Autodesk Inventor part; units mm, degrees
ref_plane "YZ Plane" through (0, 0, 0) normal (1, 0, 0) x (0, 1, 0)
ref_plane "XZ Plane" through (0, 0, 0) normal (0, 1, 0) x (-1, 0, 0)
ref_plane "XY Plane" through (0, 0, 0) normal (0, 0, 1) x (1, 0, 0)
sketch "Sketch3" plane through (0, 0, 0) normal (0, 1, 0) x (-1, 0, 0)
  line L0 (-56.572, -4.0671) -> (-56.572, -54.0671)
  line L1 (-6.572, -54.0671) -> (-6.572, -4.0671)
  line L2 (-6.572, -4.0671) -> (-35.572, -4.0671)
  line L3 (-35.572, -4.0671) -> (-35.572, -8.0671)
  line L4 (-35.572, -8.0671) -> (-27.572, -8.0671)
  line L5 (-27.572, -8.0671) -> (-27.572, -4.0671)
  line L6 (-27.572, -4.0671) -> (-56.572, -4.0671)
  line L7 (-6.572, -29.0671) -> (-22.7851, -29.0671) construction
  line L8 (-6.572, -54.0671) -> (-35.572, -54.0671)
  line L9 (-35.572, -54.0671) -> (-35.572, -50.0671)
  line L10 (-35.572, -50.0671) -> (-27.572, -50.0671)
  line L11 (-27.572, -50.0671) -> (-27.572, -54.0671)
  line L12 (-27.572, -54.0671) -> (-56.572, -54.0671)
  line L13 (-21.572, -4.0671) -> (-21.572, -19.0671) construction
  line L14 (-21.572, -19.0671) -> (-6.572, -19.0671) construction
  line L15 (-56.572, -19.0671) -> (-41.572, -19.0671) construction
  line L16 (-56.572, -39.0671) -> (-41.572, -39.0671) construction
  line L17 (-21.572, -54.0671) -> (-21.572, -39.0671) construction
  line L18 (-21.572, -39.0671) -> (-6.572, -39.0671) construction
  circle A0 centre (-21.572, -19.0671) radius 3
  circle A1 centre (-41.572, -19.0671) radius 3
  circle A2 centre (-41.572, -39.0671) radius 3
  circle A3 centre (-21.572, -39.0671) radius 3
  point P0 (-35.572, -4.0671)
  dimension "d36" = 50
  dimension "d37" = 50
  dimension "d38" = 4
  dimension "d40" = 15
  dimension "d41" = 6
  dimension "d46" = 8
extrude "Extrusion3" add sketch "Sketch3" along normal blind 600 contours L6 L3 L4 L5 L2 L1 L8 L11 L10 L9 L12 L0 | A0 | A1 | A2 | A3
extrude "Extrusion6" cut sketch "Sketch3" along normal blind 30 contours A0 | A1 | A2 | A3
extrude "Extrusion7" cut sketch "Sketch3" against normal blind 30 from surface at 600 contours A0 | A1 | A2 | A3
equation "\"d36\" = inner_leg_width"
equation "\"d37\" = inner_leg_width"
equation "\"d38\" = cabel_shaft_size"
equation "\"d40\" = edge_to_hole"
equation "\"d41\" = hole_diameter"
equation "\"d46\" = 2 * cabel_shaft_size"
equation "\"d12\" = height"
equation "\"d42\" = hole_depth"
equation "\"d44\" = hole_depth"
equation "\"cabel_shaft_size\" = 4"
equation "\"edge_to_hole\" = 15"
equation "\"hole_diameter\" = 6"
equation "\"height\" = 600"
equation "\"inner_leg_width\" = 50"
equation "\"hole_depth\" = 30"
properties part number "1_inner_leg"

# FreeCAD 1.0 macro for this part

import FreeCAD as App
import Part
import Sketcher
Q = App.Units.Quantity


def add_polygon(sketch, points):
    """Adds a closed chain of lines whose ends are joined by coincident constraints."""
    first, n = sketch.GeometryCount, len(points)
    for a, b in zip(points, points[1:] + points[:1]):
        sketch.addGeometry(Part.LineSegment(App.Vector(*a, 0), App.Vector(*b, 0)), False)
    for i in range(n):
        sketch.addConstraint(Sketcher.Constraint("Coincident", first + i, 2, first + (i + 1) % n, 1))

doc = App.newDocument("Part")
params = doc.addObject("Spreadsheet::Sheet", "Params")
for row, (alias, value) in enumerate([
    ("sketch1_width", "8 mm"),
    ("sketch1_height", "50 mm"),
    ("sketch1_height2", "4 mm"),
    ("pad1_length", "600 mm"),
    ("sketch2_diameter", "6 mm"),
    ("pocket1_length", "30 mm"),
    ("sketch3_diameter", "6 mm"),
    ("pocket2_length", "30 mm"),
], start=1):
    params.set(f"A{row}", alias)
    params.set(f"B{row}", "=" + value)
    params.setAlias(f"B{row}", alias)

body = doc.addObject("PartDesign::Body", "Body")

sketch1 = body.newObject("Sketcher::SketchObject", "Sketch")
sketch1.AttachmentSupport = (doc.getObject("XZ_Plane"), [""])
sketch1.MapMode = "FlatFace"
add_polygon(sketch1, [(35.6, -4.1), (56.6, -4.1), (56.6, -54.1), (35.6, -54.1), (35.6, -50.1), (27.6, -50.1), (27.6, -54.1), (6.6, -54.1), (6.6, -4.1), (27.6, -4.1), (27.6, -8.1), (35.6, -8.1)])
sketch1.addConstraint([
    Sketcher.Constraint("Horizontal", 0),
    Sketcher.Constraint("Vertical", 1),
    Sketcher.Constraint("Horizontal", 2),
    Sketcher.Constraint("Vertical", 3),
    Sketcher.Constraint("Horizontal", 4),
    Sketcher.Constraint("Vertical", 5),
    Sketcher.Constraint("Horizontal", 6),
    Sketcher.Constraint("Vertical", 7),
    Sketcher.Constraint("Horizontal", 8),
    Sketcher.Constraint("Vertical", 9),
    Sketcher.Constraint("Horizontal", 10),
    Sketcher.Constraint("Vertical", 11),
    Sketcher.Constraint("Horizontal", 2, 2, 5, 2),
    Sketcher.Constraint("Horizontal", 0, 2, 7, 2),
    Sketcher.Constraint("Vertical", 5, 2, 8, 2),
    Sketcher.Constraint("Vertical", 3, 2, 10, 2),
    Sketcher.Constraint("Equal", 2, 6),
    Sketcher.Constraint("Equal", 5, 9),
    Sketcher.Constraint("DistanceX", 4, 2, 4, 1, Q("8 mm")),
    Sketcher.Constraint("DistanceY", 1, 2, 1, 1, Q("50 mm")),
    Sketcher.Constraint("DistanceY", 3, 1, 3, 2, Q("4 mm")),
    Sketcher.Constraint("DistanceX", 6, 2, 1, 2, Q("50 mm")),
    Sketcher.Constraint("DistanceX", -1, 1, 0, 2, Q("56.572 mm")),
    Sketcher.Constraint("DistanceY", 0, 2, -1, 1, Q("4.067 mm")),
])
sketch1.setExpression("Constraints[30]", "Params.sketch1_width")
sketch1.setExpression("Constraints[31]", "Params.sketch1_height")
sketch1.setExpression("Constraints[32]", "Params.sketch1_height2")
pad1 = body.newObject("PartDesign::Pad", "Pad")
pad1.Profile = sketch1
pad1.setExpression("Length", "Params.pad1_length")
pad1.Reversed = True

sketch2 = body.newObject("Sketcher::SketchObject", "Sketch001")
sketch2.AttachmentSupport = (doc.getObject("XZ_Plane"), [""])
sketch2.MapMode = "FlatFace"
sketch2.addGeometry([
    Part.Circle(App.Vector(21.6, -19.1, 0), App.Vector(0, 0, 1), 3),
    Part.Circle(App.Vector(41.6, -19.1, 0), App.Vector(0, 0, 1), 3),
    Part.Circle(App.Vector(41.6, -39.1, 0), App.Vector(0, 0, 1), 3),
    Part.Circle(App.Vector(21.6, -39.1, 0), App.Vector(0, 0, 1), 3),
], False)
sketch2.addConstraint([
    Sketcher.Constraint("Equal", 0, 1),
    Sketcher.Constraint("Equal", 1, 2),
    Sketcher.Constraint("Equal", 2, 3),
    Sketcher.Constraint("Horizontal", 0, 3, 1, 3),
    Sketcher.Constraint("Horizontal", 2, 3, 3, 3),
    Sketcher.Constraint("Vertical", 1, 3, 2, 3),
    Sketcher.Constraint("Vertical", 0, 3, 3, 3),
    Sketcher.Constraint("Diameter", 0, Q("6 mm")),
    Sketcher.Constraint("DistanceX", 0, 3, 1, 3, Q("20 mm")),
    Sketcher.Constraint("DistanceY", 2, 3, 1, 3, Q("20 mm")),
    Sketcher.Constraint("DistanceX", -1, 1, 0, 3, Q("21.572 mm")),
    Sketcher.Constraint("DistanceY", 0, 3, -1, 1, Q("19.067 mm")),
])
sketch2.setExpression("Constraints[7]", "Params.sketch2_diameter")
pocket1 = body.newObject("PartDesign::Pocket", "Pocket")
pocket1.Profile = sketch2
pocket1.setExpression("Length", "Params.pocket1_length")

sketch3 = body.newObject("Sketcher::SketchObject", "Sketch002")
sketch3.AttachmentSupport = (doc.getObject("XZ_Plane"), [""])
sketch3.MapMode = "FlatFace"
sketch3.AttachmentOffset = App.Placement(App.Vector(0, 0, -600), App.Rotation())
sketch3.addGeometry([
    Part.Circle(App.Vector(21.6, -19.1, 0), App.Vector(0, 0, 1), 3),
    Part.Circle(App.Vector(41.6, -19.1, 0), App.Vector(0, 0, 1), 3),
    Part.Circle(App.Vector(41.6, -39.1, 0), App.Vector(0, 0, 1), 3),
    Part.Circle(App.Vector(21.6, -39.1, 0), App.Vector(0, 0, 1), 3),
], False)
sketch3.addConstraint([
    Sketcher.Constraint("Equal", 0, 1),
    Sketcher.Constraint("Equal", 1, 2),
    Sketcher.Constraint("Equal", 2, 3),
    Sketcher.Constraint("Horizontal", 0, 3, 1, 3),
    Sketcher.Constraint("Horizontal", 2, 3, 3, 3),
    Sketcher.Constraint("Vertical", 1, 3, 2, 3),
    Sketcher.Constraint("Vertical", 0, 3, 3, 3),
    Sketcher.Constraint("Diameter", 0, Q("6 mm")),
    Sketcher.Constraint("DistanceX", 0, 3, 1, 3, Q("20 mm")),
    Sketcher.Constraint("DistanceY", 2, 3, 1, 3, Q("20 mm")),
    Sketcher.Constraint("DistanceX", -1, 1, 0, 3, Q("21.572 mm")),
    Sketcher.Constraint("DistanceY", 0, 3, -1, 1, Q("19.067 mm")),
])
sketch3.setExpression("Constraints[7]", "Params.sketch3_diameter")
pocket2 = body.newObject("PartDesign::Pocket", "Pocket001")
pocket2.Profile = sketch3
pocket2.setExpression("Length", "Params.pocket2_length")
pocket2.Reversed = True

doc.recompute()
